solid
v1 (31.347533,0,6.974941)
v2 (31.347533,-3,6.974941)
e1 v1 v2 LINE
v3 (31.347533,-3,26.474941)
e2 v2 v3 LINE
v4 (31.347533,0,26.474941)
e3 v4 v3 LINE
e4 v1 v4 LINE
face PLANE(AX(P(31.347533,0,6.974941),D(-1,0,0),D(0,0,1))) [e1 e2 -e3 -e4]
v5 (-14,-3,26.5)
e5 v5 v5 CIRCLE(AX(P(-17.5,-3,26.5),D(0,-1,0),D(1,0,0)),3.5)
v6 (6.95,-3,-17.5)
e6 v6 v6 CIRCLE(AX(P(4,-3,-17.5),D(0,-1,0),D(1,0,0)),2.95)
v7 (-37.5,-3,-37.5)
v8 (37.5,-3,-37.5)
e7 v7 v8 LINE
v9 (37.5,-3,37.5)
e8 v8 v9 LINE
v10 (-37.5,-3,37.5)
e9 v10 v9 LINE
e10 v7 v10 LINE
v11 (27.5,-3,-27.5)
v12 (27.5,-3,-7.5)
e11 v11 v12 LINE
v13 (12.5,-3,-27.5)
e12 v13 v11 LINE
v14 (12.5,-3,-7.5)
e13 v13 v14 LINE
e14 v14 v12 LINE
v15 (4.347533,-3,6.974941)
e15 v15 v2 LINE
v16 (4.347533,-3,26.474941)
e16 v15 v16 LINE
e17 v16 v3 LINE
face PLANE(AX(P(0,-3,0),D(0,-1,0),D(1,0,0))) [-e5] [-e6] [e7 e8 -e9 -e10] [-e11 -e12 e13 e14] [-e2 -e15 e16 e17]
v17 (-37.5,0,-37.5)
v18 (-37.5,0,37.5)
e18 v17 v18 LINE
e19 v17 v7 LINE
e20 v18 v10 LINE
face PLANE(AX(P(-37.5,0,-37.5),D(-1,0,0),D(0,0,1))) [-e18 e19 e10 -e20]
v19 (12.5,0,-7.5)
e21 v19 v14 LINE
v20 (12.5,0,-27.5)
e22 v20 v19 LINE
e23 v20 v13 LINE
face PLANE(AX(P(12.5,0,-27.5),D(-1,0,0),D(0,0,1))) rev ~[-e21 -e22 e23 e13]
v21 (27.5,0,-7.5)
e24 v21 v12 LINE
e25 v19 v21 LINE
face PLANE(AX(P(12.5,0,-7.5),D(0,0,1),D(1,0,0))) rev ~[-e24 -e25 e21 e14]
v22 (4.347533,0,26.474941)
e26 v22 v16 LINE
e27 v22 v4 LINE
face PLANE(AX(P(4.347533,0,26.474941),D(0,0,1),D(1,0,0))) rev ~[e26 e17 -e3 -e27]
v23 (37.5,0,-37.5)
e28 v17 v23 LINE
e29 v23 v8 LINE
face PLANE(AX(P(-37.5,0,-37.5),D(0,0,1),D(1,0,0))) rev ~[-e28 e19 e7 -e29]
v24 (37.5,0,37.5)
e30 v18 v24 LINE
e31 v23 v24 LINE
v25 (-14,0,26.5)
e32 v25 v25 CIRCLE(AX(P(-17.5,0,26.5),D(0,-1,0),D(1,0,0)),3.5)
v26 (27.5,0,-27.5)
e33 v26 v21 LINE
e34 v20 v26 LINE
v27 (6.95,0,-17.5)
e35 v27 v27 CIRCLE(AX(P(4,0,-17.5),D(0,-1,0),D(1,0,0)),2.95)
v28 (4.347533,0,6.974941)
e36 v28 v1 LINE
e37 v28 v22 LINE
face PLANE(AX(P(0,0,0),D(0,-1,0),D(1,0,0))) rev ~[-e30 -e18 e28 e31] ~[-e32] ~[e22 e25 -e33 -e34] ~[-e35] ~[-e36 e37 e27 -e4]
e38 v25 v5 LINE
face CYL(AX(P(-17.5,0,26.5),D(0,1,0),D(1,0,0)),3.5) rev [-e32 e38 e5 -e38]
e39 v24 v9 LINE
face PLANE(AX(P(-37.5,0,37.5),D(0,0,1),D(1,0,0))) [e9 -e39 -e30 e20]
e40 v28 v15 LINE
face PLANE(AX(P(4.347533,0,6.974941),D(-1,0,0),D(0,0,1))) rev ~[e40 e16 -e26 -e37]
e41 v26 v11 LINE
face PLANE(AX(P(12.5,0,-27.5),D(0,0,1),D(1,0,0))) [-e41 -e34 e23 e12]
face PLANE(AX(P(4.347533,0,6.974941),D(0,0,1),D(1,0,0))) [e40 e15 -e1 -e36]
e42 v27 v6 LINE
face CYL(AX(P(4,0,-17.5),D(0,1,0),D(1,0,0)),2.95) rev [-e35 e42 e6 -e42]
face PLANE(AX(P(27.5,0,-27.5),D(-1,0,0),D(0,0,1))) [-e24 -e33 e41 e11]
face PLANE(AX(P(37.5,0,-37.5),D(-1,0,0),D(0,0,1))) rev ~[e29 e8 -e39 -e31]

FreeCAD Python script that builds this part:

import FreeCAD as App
import Part
import Sketcher


def add_polygon(sketch, points):
    """Adds a closed chain of lines whose ends are joined by coincident constraints."""
    first, n = sketch.GeometryCount, len(points)
    for a, b in zip(points, points[1:] + points[:1]):
        sketch.addGeometry(Part.LineSegment(App.Vector(*a, 0), App.Vector(*b, 0)), False)
    for i in range(n):
        sketch.addConstraint(Sketcher.Constraint("Coincident", first + i, 2, first + (i + 1) % n, 1))

doc = App.newDocument("Part")
body = doc.addObject("PartDesign::Body", "Body")

# Sketch on XZ plane
sketch1 = body.newObject("Sketcher::SketchObject", "Sketch")
sketch1.AttachmentSupport = (doc.getObject("XZ_Plane"), [""])
sketch1.MapMode = "FlatFace"
add_polygon(sketch1, [(-37.5, 37.5), (-37.5, -37.5), (37.5, -37.5), (37.5, 37.5)])  # lines 0-3
sketch1.addGeometry(Part.Circle(App.Vector(4, -17.5, 0), App.Vector(0, 0, 1), 3), False)  # 4
add_polygon(sketch1, [(27.5, -27.5), (12.5, -27.5), (12.5, -7.5), (27.5, -7.5)])  # lines 5-8
sketch1.addGeometry(Part.Circle(App.Vector(-17.5, 26.5, 0), App.Vector(0, 0, 1), 3.5), False)  # 9
add_polygon(sketch1, [(31.3, 7), (4.3, 7), (4.3, 26.5), (31.3, 26.5)])  # lines 10-13
sketch1.addConstraint(Sketcher.Constraint("Vertical", 0))
sketch1.addConstraint(Sketcher.Constraint("Horizontal", 1))
sketch1.addConstraint(Sketcher.Constraint("Vertical", 2))
sketch1.addConstraint(Sketcher.Constraint("Horizontal", 3))
sketch1.addConstraint(Sketcher.Constraint("Horizontal", 5))
sketch1.addConstraint(Sketcher.Constraint("Vertical", 6))
sketch1.addConstraint(Sketcher.Constraint("Horizontal", 7))
sketch1.addConstraint(Sketcher.Constraint("Vertical", 8))
sketch1.addConstraint(Sketcher.Constraint("Horizontal", 10))
sketch1.addConstraint(Sketcher.Constraint("Vertical", 11))
sketch1.addConstraint(Sketcher.Constraint("Horizontal", 12))
sketch1.addConstraint(Sketcher.Constraint("Vertical", 13))
sketch1.addConstraint(Sketcher.Constraint("Symmetric", 0, 2, 2, 2, -1, 1))
sketch1.addConstraint(Sketcher.Constraint("Equal", 3, 0))
sketch1.addConstraint(Sketcher.Constraint("Diameter", 9, 7.0))
sketch1.addConstraint(Sketcher.Constraint("Diameter", 4, 5.9))
sketch1.addConstraint(Sketcher.Constraint("DistanceX", 1, 1, 1, 2, 75.0))
sketch1.addConstraint(Sketcher.Constraint("DistanceX", 5, 2, 5, 1, 15.0))
sketch1.addConstraint(Sketcher.Constraint("DistanceX", 10, 2, 10, 1, 27.0))
sketch1.addConstraint(Sketcher.Constraint("DistanceY", 6, 1, 6, 2, 20.0))
sketch1.addConstraint(Sketcher.Constraint("DistanceY", 11, 1, 11, 2, 19.5))
sketch1.addConstraint(Sketcher.Constraint("DistanceX", -1, 1, 4, 3, 4.0))
sketch1.addConstraint(Sketcher.Constraint("DistanceY", 4, 3, 9, 3, 44.0))
sketch1.addConstraint(Sketcher.Constraint("DistanceY", 0, 2, 4, 3, 20.0))
sketch1.addConstraint(Sketcher.Constraint("DistanceX", 0, 2, 9, 3, 20.0))
sketch1.addConstraint(Sketcher.Constraint("DistanceY", 5, 2, 4, 3, 10.0))
sketch1.addConstraint(Sketcher.Constraint("DistanceX", 5, 2, 1, 2, 25.0))
sketch1.addConstraint(Sketcher.Constraint("DistanceY", -1, 1, 10, 2, 6.974941))
sketch1.addConstraint(Sketcher.Constraint("DistanceX", -1, 1, 10, 2, 4.347533))
pad1 = body.newObject("PartDesign::Pad", "Pad")
pad1.Profile = sketch1
pad1.Length = 3

doc.recompute()
